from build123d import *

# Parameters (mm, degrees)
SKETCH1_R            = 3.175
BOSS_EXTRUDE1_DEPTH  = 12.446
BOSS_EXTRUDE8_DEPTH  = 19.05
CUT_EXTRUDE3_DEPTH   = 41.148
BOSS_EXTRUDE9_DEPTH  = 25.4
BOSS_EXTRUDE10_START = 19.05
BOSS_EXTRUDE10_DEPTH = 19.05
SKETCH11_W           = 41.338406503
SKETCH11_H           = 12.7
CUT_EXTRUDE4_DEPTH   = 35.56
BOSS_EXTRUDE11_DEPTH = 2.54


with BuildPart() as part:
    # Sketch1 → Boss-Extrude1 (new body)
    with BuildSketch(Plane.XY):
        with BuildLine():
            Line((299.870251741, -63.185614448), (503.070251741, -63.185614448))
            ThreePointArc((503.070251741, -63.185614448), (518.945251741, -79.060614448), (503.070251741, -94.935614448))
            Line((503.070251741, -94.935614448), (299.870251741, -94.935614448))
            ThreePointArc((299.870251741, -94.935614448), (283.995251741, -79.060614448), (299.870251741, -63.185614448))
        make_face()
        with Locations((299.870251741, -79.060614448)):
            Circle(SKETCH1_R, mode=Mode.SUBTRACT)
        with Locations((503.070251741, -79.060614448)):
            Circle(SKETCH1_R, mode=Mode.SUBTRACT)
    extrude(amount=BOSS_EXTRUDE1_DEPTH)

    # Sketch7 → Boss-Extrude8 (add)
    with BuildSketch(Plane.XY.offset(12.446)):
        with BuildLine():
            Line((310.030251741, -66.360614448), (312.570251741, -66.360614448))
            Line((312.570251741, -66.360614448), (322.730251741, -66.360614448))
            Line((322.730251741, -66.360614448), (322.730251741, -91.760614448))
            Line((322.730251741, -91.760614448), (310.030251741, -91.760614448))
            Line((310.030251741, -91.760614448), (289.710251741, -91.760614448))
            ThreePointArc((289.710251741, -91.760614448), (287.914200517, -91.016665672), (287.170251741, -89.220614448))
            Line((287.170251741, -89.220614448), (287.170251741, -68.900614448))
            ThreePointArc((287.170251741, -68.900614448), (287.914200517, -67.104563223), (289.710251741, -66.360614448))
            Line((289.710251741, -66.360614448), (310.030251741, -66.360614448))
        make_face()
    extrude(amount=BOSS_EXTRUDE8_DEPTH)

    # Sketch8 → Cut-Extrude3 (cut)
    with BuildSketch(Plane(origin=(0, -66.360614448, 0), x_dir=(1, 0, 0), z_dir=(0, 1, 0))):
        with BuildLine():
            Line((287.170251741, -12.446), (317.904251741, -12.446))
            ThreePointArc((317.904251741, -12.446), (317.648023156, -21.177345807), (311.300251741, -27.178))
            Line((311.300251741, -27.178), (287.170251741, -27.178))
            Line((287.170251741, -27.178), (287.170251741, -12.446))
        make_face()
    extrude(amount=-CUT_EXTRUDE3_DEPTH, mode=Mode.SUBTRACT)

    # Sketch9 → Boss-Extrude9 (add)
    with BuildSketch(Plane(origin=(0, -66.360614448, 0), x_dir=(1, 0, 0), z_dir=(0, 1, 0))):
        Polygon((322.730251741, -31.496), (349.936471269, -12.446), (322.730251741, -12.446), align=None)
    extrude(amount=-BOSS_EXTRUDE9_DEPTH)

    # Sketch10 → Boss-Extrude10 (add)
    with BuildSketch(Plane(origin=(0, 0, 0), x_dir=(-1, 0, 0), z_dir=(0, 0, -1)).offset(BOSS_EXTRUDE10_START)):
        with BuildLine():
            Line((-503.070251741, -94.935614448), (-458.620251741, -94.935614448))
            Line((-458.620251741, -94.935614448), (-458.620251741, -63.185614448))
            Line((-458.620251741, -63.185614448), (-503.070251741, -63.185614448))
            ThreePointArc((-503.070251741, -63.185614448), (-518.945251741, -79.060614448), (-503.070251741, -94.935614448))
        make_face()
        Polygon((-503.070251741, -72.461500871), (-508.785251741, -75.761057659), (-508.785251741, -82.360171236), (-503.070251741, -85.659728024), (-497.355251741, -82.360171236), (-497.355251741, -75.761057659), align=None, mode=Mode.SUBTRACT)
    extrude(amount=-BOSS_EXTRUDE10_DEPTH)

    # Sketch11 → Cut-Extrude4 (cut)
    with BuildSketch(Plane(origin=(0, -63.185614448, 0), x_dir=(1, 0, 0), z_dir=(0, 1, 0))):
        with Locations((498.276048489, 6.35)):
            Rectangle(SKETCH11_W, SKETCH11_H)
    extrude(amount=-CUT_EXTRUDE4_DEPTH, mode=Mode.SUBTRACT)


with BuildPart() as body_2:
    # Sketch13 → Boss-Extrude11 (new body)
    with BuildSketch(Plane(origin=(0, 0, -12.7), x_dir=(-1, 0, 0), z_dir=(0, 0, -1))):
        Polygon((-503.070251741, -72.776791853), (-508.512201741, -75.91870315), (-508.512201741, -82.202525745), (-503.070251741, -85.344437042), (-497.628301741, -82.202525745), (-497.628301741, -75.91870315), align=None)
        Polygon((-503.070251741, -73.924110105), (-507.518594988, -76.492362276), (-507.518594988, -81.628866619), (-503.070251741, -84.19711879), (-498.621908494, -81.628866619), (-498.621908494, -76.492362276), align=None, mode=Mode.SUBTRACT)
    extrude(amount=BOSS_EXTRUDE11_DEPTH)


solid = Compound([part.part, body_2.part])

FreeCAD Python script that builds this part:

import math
import FreeCAD as App
import Part
import Sketcher

V = App.Vector
Q = App.Units.Quantity


def add_polygon(sketch, points):
    """Adds a closed chain of lines whose ends are joined by coincident constraints."""
    first, n = sketch.GeometryCount, len(points)
    for a, b in zip(points, points[1:] + points[:1]):
        sketch.addGeometry(Part.LineSegment(App.Vector(*a, 0), App.Vector(*b, 0)), False)
    for i in range(n):
        sketch.addConstraint(Sketcher.Constraint("Coincident", first + i, 2, first + (i + 1) % n, 1))

doc = App.newDocument("Part")
body = doc.addObject("PartDesign::Body", "Body")

sketch1 = body.newObject("Sketcher::SketchObject", "Sketch")
sketch1.AttachmentSupport = (doc.getObject("XY_Plane"), [""])
sketch1.MapMode = "FlatFace"
sketch1.addGeometry(Part.LineSegment(V(503.1, -63.2, 0), V(299.9, -63.2, 0)), False)
sketch1.addGeometry(Part.ArcOfCircle(Part.Circle(V(299.9, -79.1, 0), V(0, 0, 1), 15.9), math.radians(90), math.radians(270)), False)
sketch1.addGeometry(Part.LineSegment(V(299.9, -94.9, 0), V(503.1, -94.9, 0)), False)
sketch1.addGeometry(Part.ArcOfCircle(Part.Circle(V(503.1, -79.1, 0), V(0, 0, 1), 15.9), math.radians(-90), math.radians(90)), False)
sketch1.addGeometry(Part.Circle(V(503.1, -79.1, 0), V(0, 0, 1), 3.2), False)
sketch1.addGeometry(Part.Circle(V(299.9, -79.1, 0), V(0, 0, 1), 3.2), False)
sketch1.addConstraint(Sketcher.Constraint("Tangent", 0, 2, 1, 1))
sketch1.addConstraint(Sketcher.Constraint("Tangent", 1, 2, 2, 1))
sketch1.addConstraint(Sketcher.Constraint("Tangent", 2, 2, 3, 1))
sketch1.addConstraint(Sketcher.Constraint("Tangent", 3, 2, 0, 1))
sketch1.addConstraint(Sketcher.Constraint("Horizontal", 0))
sketch1.addConstraint(Sketcher.Constraint("Horizontal", 2))
sketch1.addConstraint(Sketcher.Constraint("Coincident", 4, 3, 3, 3))
sketch1.addConstraint(Sketcher.Constraint("Coincident", 5, 3, 1, 3))
sketch1.addConstraint(Sketcher.Constraint("Equal", 4, 5))
sketch1.addConstraint(Sketcher.Constraint("Diameter", 4, Q("0.25 in")))
sketch1.addConstraint(Sketcher.Constraint("DistanceX", 0, 2, 0, 1, Q("8 in")))
sketch1.addConstraint(Sketcher.Constraint("Radius", 1, Q("0.625 in")))
sketch1.addConstraint(Sketcher.Constraint("DistanceX", -1, 1, 1, 3, 299.870252))
sketch1.addConstraint(Sketcher.Constraint("DistanceY", 1, 3, -1, 1, 79.060614))
pad1 = body.newObject("PartDesign::Pad", "Pad")
pad1.Profile = sketch1
pad1.Length = Q("0.49 in")

sketch2 = body.newObject("Sketcher::SketchObject", "Sketch001")
sketch2.AttachmentSupport = (doc.getObject("XY_Plane"), [""])
sketch2.MapMode = "FlatFace"
sketch2.AttachmentOffset = App.Placement(V(0, 0, 0.49 * 25.4), App.Rotation())
sketch2.addGeometry(Part.LineSegment(V(322.7, -91.8, 0), V(322.7, -66.4, 0)), False)
sketch2.addGeometry(Part.LineSegment(V(322.7, -66.4, 0), V(289.7, -66.4, 0)), False)
sketch2.addGeometry(Part.ArcOfCircle(Part.Circle(V(289.7, -68.9, 0), V(0, 0, 1), 2.5), math.radians(90), math.radians(180)), False)
sketch2.addGeometry(Part.LineSegment(V(287.2, -68.9, 0), V(287.2, -89.2, 0)), False)
sketch2.addGeometry(Part.ArcOfCircle(Part.Circle(V(289.7, -89.2, 0), V(0, 0, 1), 2.5), math.radians(-180), math.radians(-90)), False)
sketch2.addGeometry(Part.LineSegment(V(289.7, -91.8, 0), V(322.7, -91.8, 0)), False)
sketch2.addConstraint(Sketcher.Constraint("Coincident", 0, 2, 1, 1))
sketch2.addConstraint(Sketcher.Constraint("Tangent", 1, 2, 2, 1))
sketch2.addConstraint(Sketcher.Constraint("Tangent", 2, 2, 3, 1))
sketch2.addConstraint(Sketcher.Constraint("Tangent", 3, 2, 4, 1))
sketch2.addConstraint(Sketcher.Constraint("Tangent", 4, 2, 5, 1))
sketch2.addConstraint(Sketcher.Constraint("Coincident", 5, 2, 0, 1))
sketch2.addConstraint(Sketcher.Constraint("Vertical", 0))
sketch2.addConstraint(Sketcher.Constraint("Horizontal", 1))
sketch2.addConstraint(Sketcher.Constraint("Vertical", 3))
sketch2.addConstraint(Sketcher.Constraint("Horizontal", 5))
sketch2.addConstraint(Sketcher.Constraint("Equal", 2, 4))
sketch2.addConstraint(Sketcher.Constraint("Radius", 2, Q("0.1 in")))
sketch2.addConstraint(Sketcher.Constraint("DistanceY", 0, 1, 0, 2, Q("1 in")))
sketch2.addConstraint(Sketcher.Constraint("DistanceX", 1, 2, 1, 1, Q("1.3 in")))
sketch2.addConstraint(Sketcher.Constraint("DistanceX", -1, 1, 2, 3, 289.710252))
sketch2.addConstraint(Sketcher.Constraint("DistanceY", 2, 3, -1, 1, 68.900614))
pad2 = body.newObject("PartDesign::Pad", "Pad001")
pad2.Profile = sketch2
pad2.Length = Q("0.75 in")

sketch3 = body.newObject("Sketcher::SketchObject", "Sketch002")
sketch3.AttachmentSupport = (doc.getObject("XZ_Plane"), [""])
sketch3.MapMode = "FlatFace"
sketch3.AttachmentOffset = App.Placement(V(0, 0, 66.360614), App.Rotation())
sketch3.addGeometry(Part.LineSegment(V(318, 12, 0), V(287, 12, 0)), False)
sketch3.addGeometry(Part.LineSegment(V(287, 12, 0), V(287, 27, 0)), False)
sketch3.addGeometry(Part.LineSegment(V(287, 27, 0), V(311, 27, 0)), False)
sketch3.addGeometry(Part.ArcOfCircle(Part.Circle(V(307, 17, 0), V(0, 0, 1), 11), math.radians(-21), math.radians(69)), False)
sketch3.addConstraint(Sketcher.Constraint("Coincident", 0, 2, 1, 1))
sketch3.addConstraint(Sketcher.Constraint("Coincident", 1, 2, 2, 1))
sketch3.addConstraint(Sketcher.Constraint("Coincident", 2, 2, 3, 2))
sketch3.addConstraint(Sketcher.Constraint("Coincident", 3, 1, 0, 1))
sketch3.addConstraint(Sketcher.Constraint("Horizontal", 0))
sketch3.addConstraint(Sketcher.Constraint("Vertical", 1))
sketch3.addConstraint(Sketcher.Constraint("Horizontal", 2))
sketch3.addConstraint(Sketcher.Constraint("Radius", 3, Q("0.45 in")))
sketch3.addConstraint(Sketcher.Constraint("DistanceX", 0, 2, 0, 1, Q("1.21 in")))
sketch3.addConstraint(Sketcher.Constraint("DistanceX", 2, 1, 2, 2, Q("0.95 in")))
sketch3.addConstraint(Sketcher.Constraint("DistanceY", 1, 1, 1, 2, Q("0.58 in")))
sketch3.addConstraint(Sketcher.Constraint("DistanceY", -1, 1, 0, 2, Q("0.49 in")))
sketch3.addConstraint(Sketcher.Constraint("DistanceX", -1, 1, 3, 3, 307.218042))
pocket1 = body.newObject("PartDesign::Pocket", "Pocket")
pocket1.Profile = sketch3
pocket1.Length = Q("1.62 in")
pocket1.Reversed = True

sketch4 = body.newObject("Sketcher::SketchObject", "Sketch003")
sketch4.AttachmentSupport = (doc.getObject("XZ_Plane"), [""])
sketch4.MapMode = "FlatFace"
sketch4.AttachmentOffset = App.Placement(V(0, 0, 66.360614), App.Rotation())
add_polygon(sketch4, [(323, 31), (350, 12), (323, 12)])
sketch4.addConstraint(Sketcher.Constraint("Horizontal", 1))
sketch4.addConstraint(Sketcher.Constraint("Vertical", 2))
sketch4.addConstraint(Sketcher.Constraint("Angle", 0, Q("-35 deg")))
sketch4.addConstraint(Sketcher.Constraint("DistanceY", 2, 1, 2, 2, Q("0.75 in")))
sketch4.addConstraint(Sketcher.Constraint("DistanceY", -1, 1, 0, 2, Q("0.49 in")))
sketch4.addConstraint(Sketcher.Constraint("DistanceX", -1, 1, 0, 2, 349.936471))
pad3 = body.newObject("PartDesign::Pad", "Pad002")
pad3.Profile = sketch4
pad3.Length = Q("1 in")

sketch5 = body.newObject("Sketcher::SketchObject", "Sketch004")
sketch5.AttachmentSupport = (doc.getObject("XY_Plane"), [""])
sketch5.MapMode = "FlatFace"
sketch5.AttachmentOffset = App.Placement(V(0, 0, -0.75 * 25.4), App.Rotation())
sketch5.addGeometry(Part.LineSegment(V(503, -95, 0), V(459, -95, 0)), False)
sketch5.addGeometry(Part.LineSegment(V(459, -95, 0), V(459, -63, 0)), False)
sketch5.addGeometry(Part.LineSegment(V(459, -63, 0), V(503, -63, 0)), False)
sketch5.addGeometry(Part.ArcOfCircle(Part.Circle(V(503, -79, 0), V(0, 0, 1), 16), math.radians(-90), math.radians(90)), False)
add_polygon(sketch5, [(509, -76), (503, -72), (497, -76), (497, -82), (503, -86), (509, -82)])
sketch5.addConstraint(Sketcher.Constraint("Coincident", 0, 2, 1, 1))
sketch5.addConstraint(Sketcher.Constraint("Coincident", 1, 2, 2, 1))
sketch5.addConstraint(Sketcher.Constraint("Tangent", 2, 2, 3, 2))
sketch5.addConstraint(Sketcher.Constraint("Tangent", 3, 1, 0, 1))
sketch5.addConstraint(Sketcher.Constraint("Horizontal", 0))
sketch5.addConstraint(Sketcher.Constraint("Vertical", 1))
sketch5.addConstraint(Sketcher.Constraint("Horizontal", 2))
sketch5.addConstraint(Sketcher.Constraint("Vertical", 6))
sketch5.addConstraint(Sketcher.Constraint("Vertical", 9))
sketch5.addConstraint(Sketcher.Constraint("Parallel", 4, 7))
sketch5.addConstraint(Sketcher.Constraint("Parallel", 5, 8))
sketch5.addConstraint(Sketcher.Constraint("Horizontal", 6, 2, 8, 2))
sketch5.addConstraint(Sketcher.Constraint("Horizontal", 5, 2, 9, 2))
sketch5.addConstraint(Sketcher.Constraint("Vertical", 3, 1, 4, 2))
sketch5.addConstraint(Sketcher.Constraint("Vertical", 4, 2, 7, 2))
sketch5.addConstraint(Sketcher.Constraint("Angle", 4, Q("150 deg")))
sketch5.addConstraint(Sketcher.Constraint("Radius", 3, Q("0.625 in")))
sketch5.addConstraint(Sketcher.Constraint("DistanceX", 0, 2, 0, 1, Q("1.75 in")))
sketch5.addConstraint(Sketcher.Constraint("DistanceX", 6, 2, 8, 2, Q("0.45 in")))
sketch5.addConstraint(Sketcher.Constraint("DistanceY", 4, 2, -1, 1, 72.461501))
sketch5.addConstraint(Sketcher.Constraint("DistanceY", 6, 2, 6, 1, 6.599114))
sketch5.addConstraint(Sketcher.Constraint("DistanceX", -1, 1, 3, 3, 503.070252))
sketch5.addConstraint(Sketcher.Constraint("DistanceY", 3, 3, -1, 1, 79.060614))
pad4 = body.newObject("PartDesign::Pad", "Pad003")
pad4.Profile = sketch5
pad4.Length = Q("0.75 in")

sketch6 = body.newObject("Sketcher::SketchObject", "Sketch005")
sketch6.AttachmentSupport = (doc.getObject("XZ_Plane"), [""])
sketch6.MapMode = "FlatFace"
sketch6.AttachmentOffset = App.Placement(V(0, 0, 63.185614), App.Rotation())
add_polygon(sketch6, [(478, -13), (478, 0), (519, 0), (519, -13)])
sketch6.addConstraint(Sketcher.Constraint("Vertical", 0))
sketch6.addConstraint(Sketcher.Constraint("Horizontal", 1))
sketch6.addConstraint(Sketcher.Constraint("Vertical", 2))
sketch6.addConstraint(Sketcher.Constraint("Horizontal", 3))
sketch6.addConstraint(Sketcher.Constraint("PointOnObject", 0, 2, -1))
sketch6.addConstraint(Sketcher.Constraint("DistanceY", 0, 1, 0, 2, Q("0.5 in")))
sketch6.addConstraint(Sketcher.Constraint("DistanceX", 1, 1, 1, 2, 41.338407))
sketch6.addConstraint(Sketcher.Constraint("DistanceX", -1, 1, 1, 2, 518.945252))
pocket2 = body.newObject("PartDesign::Pocket", "Pocket001")
pocket2.Profile = sketch6
pocket2.Length = Q("1.4 in")
pocket2.Reversed = True
body2 = doc.addObject("PartDesign::Body", "Body001")

sketch7 = body2.newObject("Sketcher::SketchObject", "Sketch006")
sketch7.AttachmentSupport = (doc.getObject("XY_Plane001"), [""])
sketch7.MapMode = "FlatFace"
sketch7.AttachmentOffset = App.Placement(V(0, 0, -0.5 * 25.4), App.Rotation())
add_polygon(sketch7, [(503, -73), (509, -76), (509, -82), (503, -85), (498, -82), (498, -76)])
add_polygon(sketch7, [(508, -76), (503, -74), (499, -76), (499, -82), (503, -84), (508, -82)])
sketch7.addConstraint(Sketcher.Constraint("Vertical", 1))
sketch7.addConstraint(Sketcher.Constraint("Vertical", 4))
sketch7.addConstraint(Sketcher.Constraint("Vertical", 8))
sketch7.addConstraint(Sketcher.Constraint("Vertical", 11))
sketch7.addConstraint(Sketcher.Constraint("Parallel", 0, 3))
sketch7.addConstraint(Sketcher.Constraint("Parallel", 2, 5))
sketch7.addConstraint(Sketcher.Constraint("Parallel", 3, 6))
sketch7.addConstraint(Sketcher.Constraint("Parallel", 5, 7))
sketch7.addConstraint(Sketcher.Constraint("Parallel", 6, 9))
sketch7.addConstraint(Sketcher.Constraint("Parallel", 7, 10))
sketch7.addConstraint(Sketcher.Constraint("Horizontal", 1, 2, 3, 2))
sketch7.addConstraint(Sketcher.Constraint("Horizontal", 0, 2, 4, 2))
sketch7.addConstraint(Sketcher.Constraint("Horizontal", 8, 2, 10, 2))
sketch7.addConstraint(Sketcher.Constraint("Horizontal", 7, 2, 11, 2))
sketch7.addConstraint(Sketcher.Constraint("Vertical", 2, 2, 5, 2))
sketch7.addConstraint(Sketcher.Constraint("Vertical", 5, 2, 6, 2))
sketch7.addConstraint(Sketcher.Constraint("Angle", 0, Q("-30 deg")))
sketch7.addConstraint(Sketcher.Constraint("DistanceX", 3, 2, 1, 2, Q("0.4285 in")))
sketch7.addConstraint(Sketcher.Constraint("DistanceX", -1, 1, 0, 2, 508.512202))
sketch7.addConstraint(Sketcher.Constraint("DistanceY", 1, 2, 1, 1, 6.283823))
sketch7.addConstraint(Sketcher.Constraint("DistanceY", 8, 2, 8, 1, 5.136504))
sketch7.addConstraint(Sketcher.Constraint("DistanceY", 5, 2, -1, 1, 72.776792))
sketch7.addConstraint(Sketcher.Constraint("DistanceY", 6, 2, -1, 1, 73.92411))
sketch7.addConstraint(Sketcher.Constraint("DistanceX", -1, 1, 7, 2, 498.621908))
pad5 = body2.newObject("PartDesign::Pad", "Pad004")
pad5.Profile = sketch7
pad5.Length = Q("0.1 in")
pad5.Reversed = True

doc.recompute()
